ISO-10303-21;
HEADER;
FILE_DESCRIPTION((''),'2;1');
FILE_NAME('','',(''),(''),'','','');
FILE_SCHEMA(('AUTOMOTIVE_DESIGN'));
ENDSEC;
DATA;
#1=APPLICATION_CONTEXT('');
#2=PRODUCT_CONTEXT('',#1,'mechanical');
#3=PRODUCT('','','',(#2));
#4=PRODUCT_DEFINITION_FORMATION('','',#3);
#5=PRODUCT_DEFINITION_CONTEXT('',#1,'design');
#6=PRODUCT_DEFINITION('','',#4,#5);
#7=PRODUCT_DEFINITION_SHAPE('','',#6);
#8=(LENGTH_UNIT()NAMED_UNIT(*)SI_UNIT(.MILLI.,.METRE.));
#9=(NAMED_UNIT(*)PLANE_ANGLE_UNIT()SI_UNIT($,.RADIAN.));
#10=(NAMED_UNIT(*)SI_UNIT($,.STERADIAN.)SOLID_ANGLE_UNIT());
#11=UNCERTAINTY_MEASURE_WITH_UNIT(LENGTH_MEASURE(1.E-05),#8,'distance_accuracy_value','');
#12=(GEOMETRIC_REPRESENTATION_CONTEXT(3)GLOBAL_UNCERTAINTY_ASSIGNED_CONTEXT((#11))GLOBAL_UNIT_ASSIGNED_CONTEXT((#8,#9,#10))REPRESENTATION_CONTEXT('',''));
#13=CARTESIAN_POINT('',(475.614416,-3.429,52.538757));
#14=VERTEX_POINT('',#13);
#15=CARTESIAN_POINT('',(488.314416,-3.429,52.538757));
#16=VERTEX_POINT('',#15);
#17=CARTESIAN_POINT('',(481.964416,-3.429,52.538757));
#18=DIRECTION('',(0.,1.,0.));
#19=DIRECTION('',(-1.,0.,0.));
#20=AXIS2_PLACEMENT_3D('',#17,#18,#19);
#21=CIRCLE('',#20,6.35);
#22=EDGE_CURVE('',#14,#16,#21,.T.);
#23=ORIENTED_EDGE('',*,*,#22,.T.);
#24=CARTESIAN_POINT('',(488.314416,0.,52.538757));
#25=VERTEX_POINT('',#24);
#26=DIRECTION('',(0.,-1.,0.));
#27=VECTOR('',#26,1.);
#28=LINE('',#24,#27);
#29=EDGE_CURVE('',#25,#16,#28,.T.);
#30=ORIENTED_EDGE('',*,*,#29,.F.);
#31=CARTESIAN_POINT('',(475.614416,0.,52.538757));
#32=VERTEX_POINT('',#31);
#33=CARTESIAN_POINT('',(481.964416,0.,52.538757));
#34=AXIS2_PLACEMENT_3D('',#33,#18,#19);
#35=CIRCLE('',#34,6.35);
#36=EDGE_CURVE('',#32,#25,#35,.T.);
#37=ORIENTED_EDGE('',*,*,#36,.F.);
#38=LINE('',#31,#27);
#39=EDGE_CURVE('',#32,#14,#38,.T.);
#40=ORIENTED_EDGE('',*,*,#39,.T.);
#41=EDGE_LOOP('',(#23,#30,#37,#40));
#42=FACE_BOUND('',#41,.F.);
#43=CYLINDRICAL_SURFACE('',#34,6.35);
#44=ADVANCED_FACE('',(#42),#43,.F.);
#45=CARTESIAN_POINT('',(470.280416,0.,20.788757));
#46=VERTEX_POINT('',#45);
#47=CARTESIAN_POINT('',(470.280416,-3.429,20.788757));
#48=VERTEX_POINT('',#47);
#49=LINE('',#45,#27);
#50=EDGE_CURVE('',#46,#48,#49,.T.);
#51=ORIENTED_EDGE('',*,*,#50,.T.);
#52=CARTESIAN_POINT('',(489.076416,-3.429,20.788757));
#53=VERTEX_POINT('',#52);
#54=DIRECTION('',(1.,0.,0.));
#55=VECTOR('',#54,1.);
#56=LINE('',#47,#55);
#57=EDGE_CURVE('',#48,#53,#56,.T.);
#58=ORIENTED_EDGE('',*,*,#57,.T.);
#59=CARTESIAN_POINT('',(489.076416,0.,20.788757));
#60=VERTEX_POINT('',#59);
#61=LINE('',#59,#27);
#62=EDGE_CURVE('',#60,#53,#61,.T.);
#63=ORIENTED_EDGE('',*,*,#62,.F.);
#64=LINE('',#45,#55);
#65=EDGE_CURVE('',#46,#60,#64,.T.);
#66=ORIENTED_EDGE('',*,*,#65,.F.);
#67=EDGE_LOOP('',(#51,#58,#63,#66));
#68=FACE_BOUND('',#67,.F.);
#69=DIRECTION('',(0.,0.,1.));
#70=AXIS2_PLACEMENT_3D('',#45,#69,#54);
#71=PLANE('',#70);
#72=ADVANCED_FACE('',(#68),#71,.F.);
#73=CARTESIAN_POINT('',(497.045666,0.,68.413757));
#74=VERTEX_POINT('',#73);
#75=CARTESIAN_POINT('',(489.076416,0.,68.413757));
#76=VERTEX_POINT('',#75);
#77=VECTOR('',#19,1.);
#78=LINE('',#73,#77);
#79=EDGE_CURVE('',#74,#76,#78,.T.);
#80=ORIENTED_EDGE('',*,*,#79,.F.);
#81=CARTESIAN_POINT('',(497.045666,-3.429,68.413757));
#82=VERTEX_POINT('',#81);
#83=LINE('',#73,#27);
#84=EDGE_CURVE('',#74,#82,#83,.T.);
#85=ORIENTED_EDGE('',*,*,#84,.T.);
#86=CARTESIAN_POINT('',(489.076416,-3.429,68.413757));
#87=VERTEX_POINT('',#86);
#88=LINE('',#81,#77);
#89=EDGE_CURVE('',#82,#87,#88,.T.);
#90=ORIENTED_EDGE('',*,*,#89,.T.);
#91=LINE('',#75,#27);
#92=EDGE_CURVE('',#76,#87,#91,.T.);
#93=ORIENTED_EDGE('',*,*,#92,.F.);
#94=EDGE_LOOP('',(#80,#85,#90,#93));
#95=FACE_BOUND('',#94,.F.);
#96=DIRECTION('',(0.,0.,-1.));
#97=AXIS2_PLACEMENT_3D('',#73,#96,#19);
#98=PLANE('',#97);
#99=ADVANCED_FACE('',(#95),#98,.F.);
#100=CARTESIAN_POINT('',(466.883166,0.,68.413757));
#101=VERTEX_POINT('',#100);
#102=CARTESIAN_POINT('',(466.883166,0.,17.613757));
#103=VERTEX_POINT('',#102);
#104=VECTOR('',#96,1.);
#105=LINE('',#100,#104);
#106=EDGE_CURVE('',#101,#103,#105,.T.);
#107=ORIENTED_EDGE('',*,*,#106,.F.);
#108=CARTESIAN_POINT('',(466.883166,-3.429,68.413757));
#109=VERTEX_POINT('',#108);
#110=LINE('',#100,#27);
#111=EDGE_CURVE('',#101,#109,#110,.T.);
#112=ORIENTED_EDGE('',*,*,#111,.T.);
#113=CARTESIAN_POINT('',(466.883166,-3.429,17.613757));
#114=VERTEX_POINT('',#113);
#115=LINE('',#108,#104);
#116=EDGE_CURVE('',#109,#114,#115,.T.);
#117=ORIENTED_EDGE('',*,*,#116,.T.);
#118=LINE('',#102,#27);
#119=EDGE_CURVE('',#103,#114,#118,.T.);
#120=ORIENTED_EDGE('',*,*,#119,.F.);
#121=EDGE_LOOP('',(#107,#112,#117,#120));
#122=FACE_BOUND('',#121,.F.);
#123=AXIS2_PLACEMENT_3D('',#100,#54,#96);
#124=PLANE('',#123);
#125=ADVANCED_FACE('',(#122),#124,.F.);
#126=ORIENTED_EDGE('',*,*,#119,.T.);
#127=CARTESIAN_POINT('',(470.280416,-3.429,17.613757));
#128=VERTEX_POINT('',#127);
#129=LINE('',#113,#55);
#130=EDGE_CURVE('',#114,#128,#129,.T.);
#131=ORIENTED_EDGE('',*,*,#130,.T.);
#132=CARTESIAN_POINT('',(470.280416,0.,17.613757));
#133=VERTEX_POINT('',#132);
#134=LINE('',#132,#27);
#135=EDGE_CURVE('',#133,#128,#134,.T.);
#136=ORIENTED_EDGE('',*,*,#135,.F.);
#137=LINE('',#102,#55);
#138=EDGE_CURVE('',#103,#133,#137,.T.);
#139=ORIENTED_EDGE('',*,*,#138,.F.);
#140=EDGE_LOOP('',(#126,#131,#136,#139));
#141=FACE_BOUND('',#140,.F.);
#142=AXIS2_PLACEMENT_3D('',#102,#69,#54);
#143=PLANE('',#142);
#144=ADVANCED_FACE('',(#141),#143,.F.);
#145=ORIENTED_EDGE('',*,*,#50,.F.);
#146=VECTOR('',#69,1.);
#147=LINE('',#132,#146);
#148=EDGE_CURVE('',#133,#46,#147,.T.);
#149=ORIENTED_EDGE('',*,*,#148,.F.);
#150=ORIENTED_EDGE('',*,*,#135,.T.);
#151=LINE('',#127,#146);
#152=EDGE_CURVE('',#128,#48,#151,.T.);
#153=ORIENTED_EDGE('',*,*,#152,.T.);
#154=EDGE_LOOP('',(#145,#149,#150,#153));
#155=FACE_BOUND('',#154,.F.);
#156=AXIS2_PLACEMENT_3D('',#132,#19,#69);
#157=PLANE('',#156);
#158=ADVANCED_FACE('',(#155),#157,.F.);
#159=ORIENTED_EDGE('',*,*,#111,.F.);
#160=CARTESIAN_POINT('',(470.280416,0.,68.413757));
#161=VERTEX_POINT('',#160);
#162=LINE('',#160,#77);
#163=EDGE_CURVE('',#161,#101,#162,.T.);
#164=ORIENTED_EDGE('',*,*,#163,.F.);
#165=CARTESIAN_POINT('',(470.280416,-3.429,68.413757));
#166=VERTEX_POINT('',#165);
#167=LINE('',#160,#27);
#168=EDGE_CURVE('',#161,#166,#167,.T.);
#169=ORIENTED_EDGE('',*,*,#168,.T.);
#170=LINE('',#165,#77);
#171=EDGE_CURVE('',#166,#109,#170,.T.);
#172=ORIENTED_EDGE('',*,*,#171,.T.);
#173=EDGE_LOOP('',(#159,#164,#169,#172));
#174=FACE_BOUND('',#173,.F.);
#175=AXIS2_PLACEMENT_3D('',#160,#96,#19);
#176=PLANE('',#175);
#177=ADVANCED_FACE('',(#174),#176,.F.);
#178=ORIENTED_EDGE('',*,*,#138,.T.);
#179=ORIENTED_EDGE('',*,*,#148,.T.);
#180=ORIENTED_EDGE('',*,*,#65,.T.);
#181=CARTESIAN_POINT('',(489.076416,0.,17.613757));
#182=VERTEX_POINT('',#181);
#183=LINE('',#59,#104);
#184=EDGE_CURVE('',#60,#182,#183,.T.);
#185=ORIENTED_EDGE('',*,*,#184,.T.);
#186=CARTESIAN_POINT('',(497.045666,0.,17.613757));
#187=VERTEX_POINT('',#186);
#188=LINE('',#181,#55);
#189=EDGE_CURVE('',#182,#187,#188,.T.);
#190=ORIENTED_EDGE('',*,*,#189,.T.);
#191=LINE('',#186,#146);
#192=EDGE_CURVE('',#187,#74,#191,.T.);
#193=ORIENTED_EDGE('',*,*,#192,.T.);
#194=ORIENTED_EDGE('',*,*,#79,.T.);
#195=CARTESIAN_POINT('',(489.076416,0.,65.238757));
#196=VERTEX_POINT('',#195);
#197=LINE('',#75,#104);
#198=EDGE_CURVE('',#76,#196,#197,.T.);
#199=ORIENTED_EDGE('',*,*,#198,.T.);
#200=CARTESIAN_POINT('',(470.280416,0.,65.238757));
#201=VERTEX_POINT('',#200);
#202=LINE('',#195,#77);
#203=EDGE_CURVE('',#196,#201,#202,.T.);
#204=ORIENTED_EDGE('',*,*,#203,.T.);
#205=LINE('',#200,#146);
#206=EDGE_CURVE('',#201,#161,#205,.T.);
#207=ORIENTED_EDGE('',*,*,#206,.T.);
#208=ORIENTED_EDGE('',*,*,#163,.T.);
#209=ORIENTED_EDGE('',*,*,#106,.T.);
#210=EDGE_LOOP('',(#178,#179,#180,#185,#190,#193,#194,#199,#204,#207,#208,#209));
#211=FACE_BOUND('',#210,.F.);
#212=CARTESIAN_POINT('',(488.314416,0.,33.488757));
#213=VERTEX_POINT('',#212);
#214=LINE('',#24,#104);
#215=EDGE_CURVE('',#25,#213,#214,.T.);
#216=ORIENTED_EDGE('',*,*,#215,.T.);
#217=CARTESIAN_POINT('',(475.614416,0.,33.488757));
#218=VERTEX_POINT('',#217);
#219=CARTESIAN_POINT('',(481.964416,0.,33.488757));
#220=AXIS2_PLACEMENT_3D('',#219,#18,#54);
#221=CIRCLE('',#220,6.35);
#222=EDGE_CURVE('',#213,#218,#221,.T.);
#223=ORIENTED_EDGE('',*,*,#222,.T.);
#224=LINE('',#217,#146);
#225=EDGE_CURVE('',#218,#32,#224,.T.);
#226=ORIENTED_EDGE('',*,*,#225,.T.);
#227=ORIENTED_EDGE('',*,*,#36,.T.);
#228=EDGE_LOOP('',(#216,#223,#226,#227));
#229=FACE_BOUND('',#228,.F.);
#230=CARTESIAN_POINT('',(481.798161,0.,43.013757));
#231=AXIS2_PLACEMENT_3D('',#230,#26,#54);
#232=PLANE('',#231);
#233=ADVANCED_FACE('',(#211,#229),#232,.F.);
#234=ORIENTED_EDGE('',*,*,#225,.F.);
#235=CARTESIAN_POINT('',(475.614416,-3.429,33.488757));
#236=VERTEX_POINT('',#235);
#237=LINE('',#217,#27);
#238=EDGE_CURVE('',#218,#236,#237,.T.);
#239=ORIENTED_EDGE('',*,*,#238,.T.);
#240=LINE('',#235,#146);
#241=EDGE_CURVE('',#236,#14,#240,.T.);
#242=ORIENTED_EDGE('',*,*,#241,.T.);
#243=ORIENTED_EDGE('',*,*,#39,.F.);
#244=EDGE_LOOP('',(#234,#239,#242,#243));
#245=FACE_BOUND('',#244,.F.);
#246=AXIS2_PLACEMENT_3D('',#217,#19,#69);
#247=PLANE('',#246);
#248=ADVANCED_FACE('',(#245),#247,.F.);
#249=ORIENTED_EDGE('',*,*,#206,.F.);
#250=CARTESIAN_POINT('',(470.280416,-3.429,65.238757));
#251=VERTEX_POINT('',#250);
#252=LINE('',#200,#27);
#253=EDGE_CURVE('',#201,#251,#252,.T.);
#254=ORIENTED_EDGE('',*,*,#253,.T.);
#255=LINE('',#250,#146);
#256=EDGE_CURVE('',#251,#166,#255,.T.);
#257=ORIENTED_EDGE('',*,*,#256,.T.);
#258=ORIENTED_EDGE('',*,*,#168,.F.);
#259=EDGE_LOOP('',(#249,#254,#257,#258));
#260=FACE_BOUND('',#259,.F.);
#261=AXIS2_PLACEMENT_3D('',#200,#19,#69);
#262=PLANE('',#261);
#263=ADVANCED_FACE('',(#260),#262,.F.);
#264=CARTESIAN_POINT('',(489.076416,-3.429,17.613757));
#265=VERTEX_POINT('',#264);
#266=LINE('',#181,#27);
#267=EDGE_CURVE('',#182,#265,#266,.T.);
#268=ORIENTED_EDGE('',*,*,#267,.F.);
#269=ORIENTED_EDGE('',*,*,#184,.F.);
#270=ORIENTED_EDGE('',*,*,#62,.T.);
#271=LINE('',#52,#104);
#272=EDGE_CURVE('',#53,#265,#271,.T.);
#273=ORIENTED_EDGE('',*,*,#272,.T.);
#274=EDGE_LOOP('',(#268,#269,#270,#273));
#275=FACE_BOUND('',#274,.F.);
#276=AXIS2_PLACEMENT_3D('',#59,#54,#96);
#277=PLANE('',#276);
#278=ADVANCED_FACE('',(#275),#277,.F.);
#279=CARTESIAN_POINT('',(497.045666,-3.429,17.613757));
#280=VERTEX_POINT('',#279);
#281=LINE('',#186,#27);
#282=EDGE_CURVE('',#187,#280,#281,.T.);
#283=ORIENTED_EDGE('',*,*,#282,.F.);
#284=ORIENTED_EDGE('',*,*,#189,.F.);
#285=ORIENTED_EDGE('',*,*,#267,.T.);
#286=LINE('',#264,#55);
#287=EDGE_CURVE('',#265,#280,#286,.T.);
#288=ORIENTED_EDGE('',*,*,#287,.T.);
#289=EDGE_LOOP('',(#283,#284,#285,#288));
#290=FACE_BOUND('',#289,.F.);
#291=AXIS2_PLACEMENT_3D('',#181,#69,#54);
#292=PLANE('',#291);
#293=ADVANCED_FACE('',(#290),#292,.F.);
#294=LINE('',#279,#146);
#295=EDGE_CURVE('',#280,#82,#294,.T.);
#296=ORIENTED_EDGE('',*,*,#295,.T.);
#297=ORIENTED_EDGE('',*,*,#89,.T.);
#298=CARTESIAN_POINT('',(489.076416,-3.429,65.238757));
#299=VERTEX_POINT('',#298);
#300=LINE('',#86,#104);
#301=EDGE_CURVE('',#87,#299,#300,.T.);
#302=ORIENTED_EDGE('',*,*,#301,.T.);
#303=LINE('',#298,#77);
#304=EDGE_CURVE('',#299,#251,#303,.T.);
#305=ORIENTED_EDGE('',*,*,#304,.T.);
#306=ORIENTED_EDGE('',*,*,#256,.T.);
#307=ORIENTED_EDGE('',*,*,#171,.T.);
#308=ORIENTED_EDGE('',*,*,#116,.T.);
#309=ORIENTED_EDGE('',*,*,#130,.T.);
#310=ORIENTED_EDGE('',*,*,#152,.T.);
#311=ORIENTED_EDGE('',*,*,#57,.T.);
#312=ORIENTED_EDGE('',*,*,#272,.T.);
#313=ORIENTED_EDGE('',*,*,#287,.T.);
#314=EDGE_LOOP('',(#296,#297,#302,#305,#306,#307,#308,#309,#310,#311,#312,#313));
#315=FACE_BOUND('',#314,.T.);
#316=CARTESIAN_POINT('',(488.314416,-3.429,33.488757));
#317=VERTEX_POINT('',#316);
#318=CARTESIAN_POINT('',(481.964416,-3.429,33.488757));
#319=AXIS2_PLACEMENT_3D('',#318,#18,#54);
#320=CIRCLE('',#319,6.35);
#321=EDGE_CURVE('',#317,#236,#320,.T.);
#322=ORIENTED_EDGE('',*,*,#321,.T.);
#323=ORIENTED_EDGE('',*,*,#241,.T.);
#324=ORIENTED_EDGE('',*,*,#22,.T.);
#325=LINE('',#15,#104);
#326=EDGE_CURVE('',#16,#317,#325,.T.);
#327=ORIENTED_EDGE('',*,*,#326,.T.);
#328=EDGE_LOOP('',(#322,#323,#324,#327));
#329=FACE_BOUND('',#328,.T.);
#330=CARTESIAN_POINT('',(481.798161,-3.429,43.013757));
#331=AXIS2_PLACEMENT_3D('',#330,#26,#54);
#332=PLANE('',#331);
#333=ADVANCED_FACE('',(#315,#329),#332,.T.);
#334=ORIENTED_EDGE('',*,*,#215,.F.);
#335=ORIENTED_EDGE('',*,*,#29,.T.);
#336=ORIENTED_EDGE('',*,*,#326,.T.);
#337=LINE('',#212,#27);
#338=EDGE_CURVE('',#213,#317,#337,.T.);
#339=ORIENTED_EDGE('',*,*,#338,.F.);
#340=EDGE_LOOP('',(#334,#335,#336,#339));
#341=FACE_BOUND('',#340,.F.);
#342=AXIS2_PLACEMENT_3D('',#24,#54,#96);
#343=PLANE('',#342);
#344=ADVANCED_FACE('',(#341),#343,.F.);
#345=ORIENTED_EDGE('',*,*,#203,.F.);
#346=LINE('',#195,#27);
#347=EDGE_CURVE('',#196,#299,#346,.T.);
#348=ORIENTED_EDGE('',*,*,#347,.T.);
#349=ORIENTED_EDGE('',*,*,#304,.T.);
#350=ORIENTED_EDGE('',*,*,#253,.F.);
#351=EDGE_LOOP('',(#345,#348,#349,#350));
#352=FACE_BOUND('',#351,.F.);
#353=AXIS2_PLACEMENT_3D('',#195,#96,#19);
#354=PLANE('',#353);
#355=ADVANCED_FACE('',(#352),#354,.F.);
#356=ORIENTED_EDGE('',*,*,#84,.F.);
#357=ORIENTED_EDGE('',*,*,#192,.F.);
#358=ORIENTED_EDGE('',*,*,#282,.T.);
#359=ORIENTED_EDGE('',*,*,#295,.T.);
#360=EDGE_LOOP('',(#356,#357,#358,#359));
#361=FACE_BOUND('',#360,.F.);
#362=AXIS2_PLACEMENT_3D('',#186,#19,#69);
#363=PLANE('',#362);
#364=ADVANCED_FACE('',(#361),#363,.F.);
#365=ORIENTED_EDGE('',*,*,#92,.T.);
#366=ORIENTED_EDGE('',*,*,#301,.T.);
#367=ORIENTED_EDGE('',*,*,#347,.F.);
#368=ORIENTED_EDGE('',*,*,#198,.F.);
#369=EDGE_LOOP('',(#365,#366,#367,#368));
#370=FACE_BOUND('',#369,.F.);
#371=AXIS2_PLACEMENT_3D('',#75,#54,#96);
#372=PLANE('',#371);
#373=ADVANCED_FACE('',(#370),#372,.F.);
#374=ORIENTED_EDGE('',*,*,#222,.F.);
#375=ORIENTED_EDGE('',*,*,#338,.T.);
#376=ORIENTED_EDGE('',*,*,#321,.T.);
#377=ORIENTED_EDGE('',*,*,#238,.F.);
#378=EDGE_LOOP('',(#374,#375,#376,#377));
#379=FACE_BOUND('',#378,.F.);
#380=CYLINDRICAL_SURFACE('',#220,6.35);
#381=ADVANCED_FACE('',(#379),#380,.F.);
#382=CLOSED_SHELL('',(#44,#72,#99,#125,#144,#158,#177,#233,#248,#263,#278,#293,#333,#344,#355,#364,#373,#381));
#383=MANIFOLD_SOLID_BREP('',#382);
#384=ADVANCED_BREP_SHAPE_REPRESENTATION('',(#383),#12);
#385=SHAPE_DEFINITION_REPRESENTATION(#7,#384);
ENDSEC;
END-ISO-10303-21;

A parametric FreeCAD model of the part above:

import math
import FreeCAD as App
import Part
import Sketcher
Q = App.Units.Quantity

doc = App.newDocument("Part")
body = doc.addObject("PartDesign::Body", "Body")

# Sketch on XZ plane
sketch1 = doc.addObject("Sketcher::SketchObject", "Sketch")
body.addObject(sketch1)
sketch1.AttachmentSupport = (doc.XZ_Plane, [""])
sketch1.MapMode = "FlatFace"
sketch1.addGeometry(Part.LineSegment(App.Vector(489.1, 17.6, 0), App.Vector(497, 17.6, 0)), False)
sketch1.addGeometry(Part.LineSegment(App.Vector(497, 17.6, 0), App.Vector(497, 68.4, 0)), False)
sketch1.addGeometry(Part.LineSegment(App.Vector(497, 68.4, 0), App.Vector(489.1, 68.4, 0)), False)
sketch1.addGeometry(Part.LineSegment(App.Vector(489.1, 68.4, 0), App.Vector(489.1, 65.2, 0)), False)
sketch1.addGeometry(Part.LineSegment(App.Vector(489.1, 65.2, 0), App.Vector(470.3, 65.2, 0)), False)
sketch1.addGeometry(Part.LineSegment(App.Vector(470.3, 65.2, 0), App.Vector(470.3, 68.4, 0)), False)
sketch1.addGeometry(Part.LineSegment(App.Vector(470.3, 68.4, 0), App.Vector(466.9, 68.4, 0)), False)
sketch1.addGeometry(Part.LineSegment(App.Vector(466.9, 68.4, 0), App.Vector(466.9, 17.6, 0)), False)
sketch1.addGeometry(Part.LineSegment(App.Vector(466.9, 17.6, 0), App.Vector(470.3, 17.6, 0)), False)
sketch1.addGeometry(Part.LineSegment(App.Vector(470.3, 17.6, 0), App.Vector(470.3, 20.8, 0)), False)
sketch1.addGeometry(Part.LineSegment(App.Vector(470.3, 20.8, 0), App.Vector(489.1, 20.8, 0)), False)
sketch1.addGeometry(Part.LineSegment(App.Vector(489.1, 20.8, 0), App.Vector(489.1, 17.6, 0)), False)
sketch1.addGeometry(Part.LineSegment(App.Vector(488.3, 52.5, 0), App.Vector(488.3, 33.5, 0)), False)
sketch1.addGeometry(Part.ArcOfCircle(Part.Circle(App.Vector(482, 33.5, 0), App.Vector(0, 0, 1), 6.3), math.radians(180), math.radians(360)), False)
sketch1.addGeometry(Part.LineSegment(App.Vector(475.6, 33.5, 0), App.Vector(475.6, 52.5, 0)), False)
sketch1.addGeometry(Part.ArcOfCircle(Part.Circle(App.Vector(482, 52.5, 0), App.Vector(0, 0, 1), 6.3), math.radians(0), math.radians(180)), False)
sketch1.addConstraint(Sketcher.Constraint("Coincident", 0, 2, 1, 1))
sketch1.addConstraint(Sketcher.Constraint("Coincident", 1, 2, 2, 1))
sketch1.addConstraint(Sketcher.Constraint("Coincident", 2, 2, 3, 1))
sketch1.addConstraint(Sketcher.Constraint("Coincident", 3, 2, 4, 1))
sketch1.addConstraint(Sketcher.Constraint("Coincident", 4, 2, 5, 1))
sketch1.addConstraint(Sketcher.Constraint("Coincident", 5, 2, 6, 1))
sketch1.addConstraint(Sketcher.Constraint("Coincident", 6, 2, 7, 1))
sketch1.addConstraint(Sketcher.Constraint("Coincident", 7, 2, 8, 1))
sketch1.addConstraint(Sketcher.Constraint("Coincident", 8, 2, 9, 1))
sketch1.addConstraint(Sketcher.Constraint("Coincident", 9, 2, 10, 1))
sketch1.addConstraint(Sketcher.Constraint("Coincident", 10, 2, 11, 1))
sketch1.addConstraint(Sketcher.Constraint("Coincident", 11, 2, 0, 1))
sketch1.addConstraint(Sketcher.Constraint("Tangent", 12, 2, 13, 2))
sketch1.addConstraint(Sketcher.Constraint("Tangent", 13, 1, 14, 1))
sketch1.addConstraint(Sketcher.Constraint("Tangent", 14, 2, 15, 2))
sketch1.addConstraint(Sketcher.Constraint("Tangent", 15, 1, 12, 1))
sketch1.addConstraint(Sketcher.Constraint("Horizontal", 0))
sketch1.addConstraint(Sketcher.Constraint("Vertical", 1))
sketch1.addConstraint(Sketcher.Constraint("Horizontal", 2))
sketch1.addConstraint(Sketcher.Constraint("Vertical", 3))
sketch1.addConstraint(Sketcher.Constraint("Horizontal", 4))
sketch1.addConstraint(Sketcher.Constraint("Vertical", 5))
sketch1.addConstraint(Sketcher.Constraint("Horizontal", 6))
sketch1.addConstraint(Sketcher.Constraint("Vertical", 7))
sketch1.addConstraint(Sketcher.Constraint("Horizontal", 8))
sketch1.addConstraint(Sketcher.Constraint("Vertical", 9))
sketch1.addConstraint(Sketcher.Constraint("Horizontal", 10))
sketch1.addConstraint(Sketcher.Constraint("Vertical", 11))
sketch1.addConstraint(Sketcher.Constraint("Vertical", 12))
sketch1.addConstraint(Sketcher.Constraint("Vertical", 14))
sketch1.addConstraint(Sketcher.Constraint("Horizontal", 2, 2, 5, 2))
sketch1.addConstraint(Sketcher.Constraint("Horizontal", 0, 2, 7, 2))
sketch1.addConstraint(Sketcher.Constraint("Vertical", 5, 2, 8, 2))
sketch1.addConstraint(Sketcher.Constraint("Vertical", 3, 2, 10, 2))
sketch1.addConstraint(Sketcher.Constraint("Equal", 5, 9))
sketch1.addConstraint(Sketcher.Constraint("DistanceY", 1, 1, 1, 2, Q("2 in")))
sketch1.addConstraint(Sketcher.Constraint("Radius", 13, Q("0.25 in")))
sketch1.addConstraint(Sketcher.Constraint("DistanceX", 4, 2, 4, 1, Q("0.74 in")))
sketch1.addConstraint(Sketcher.Constraint("DistanceY", 12, 2, 12, 1, Q("0.75 in")))
sketch1.addConstraint(Sketcher.Constraint("DistanceY", 15, 3, 3, 2, Q("0.5 in")))
sketch1.addConstraint(Sketcher.Constraint("DistanceY", 9, 2, 13, 3, Q("0.5 in")))
sketch1.addConstraint(Sketcher.Constraint("DistanceX", 15, 3, 2, 2, Q("0.28 in")))
sketch1.addConstraint(Sketcher.Constraint("DistanceX", 13, 3, 0, 2, Q("0.59375 in")))
sketch1.addConstraint(Sketcher.Constraint("DistanceX", 6, 2, 15, 3, Q("0.59375 in")))
sketch1.addConstraint(Sketcher.Constraint("DistanceX", -1, 1, 13, 3, Q("481.964416 mm")))
sketch1.addConstraint(Sketcher.Constraint("DistanceY", -1, 1, 13, 3, Q("33.488757 mm")))
pad1 = doc.addObject("PartDesign::Pad", "Pad")
body.addObject(pad1)
pad1.Profile = sketch1
pad1.Length = Q("0.135 in")

doc.recompute()
